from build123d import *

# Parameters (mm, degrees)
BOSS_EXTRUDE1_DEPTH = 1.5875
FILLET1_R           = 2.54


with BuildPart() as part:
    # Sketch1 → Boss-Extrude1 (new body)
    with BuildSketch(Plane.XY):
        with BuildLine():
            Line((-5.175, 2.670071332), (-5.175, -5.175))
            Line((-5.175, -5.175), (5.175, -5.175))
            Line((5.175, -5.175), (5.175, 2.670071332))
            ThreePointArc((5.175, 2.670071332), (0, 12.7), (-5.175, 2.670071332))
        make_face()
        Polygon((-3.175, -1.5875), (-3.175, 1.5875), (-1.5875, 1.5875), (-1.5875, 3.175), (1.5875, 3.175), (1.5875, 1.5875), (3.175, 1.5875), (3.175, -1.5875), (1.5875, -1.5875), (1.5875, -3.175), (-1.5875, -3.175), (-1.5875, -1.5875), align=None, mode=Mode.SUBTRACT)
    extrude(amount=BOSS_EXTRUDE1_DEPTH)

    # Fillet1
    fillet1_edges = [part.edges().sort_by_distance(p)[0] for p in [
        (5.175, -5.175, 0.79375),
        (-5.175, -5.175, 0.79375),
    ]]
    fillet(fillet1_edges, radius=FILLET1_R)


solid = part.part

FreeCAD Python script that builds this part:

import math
import FreeCAD as App
import Part
import Sketcher
from FreeCAD import Vector
Q = App.Units.Quantity


def edges_at(feature, points):
    """Names of the edges that pass closest to the given points."""
    edges = feature.Shape.Edges
    near = lambda p: min(range(len(edges)), key=lambda i: edges[i].distToShape(Part.Vertex(*p))[0])
    return sorted({f"Edge{near(p) + 1}" for p in points})

doc = App.newDocument("Part")
body = doc.addObject("PartDesign::Body", "Body")

# Sketch on XY plane
sketch1 = body.newObject("Sketcher::SketchObject", "Sketch")
sketch1.AttachmentSupport = (doc.getObject("XY_Plane"), [""])
sketch1.MapMode = "FlatFace"
sketch1.addGeometry([
    Part.LineSegment(Vector(-5.175, 2.670071, 0), Vector(-5.175, -5.175, 0)),  # 0
    Part.LineSegment(Vector(-5.175, -5.175, 0), Vector(5.175, -5.175, 0)),  # 1
    Part.LineSegment(Vector(5.175, -5.175, 0), Vector(5.175, 2.670071, 0)),  # 2
    Part.ArcOfCircle(Part.Circle(Vector(0, 6.35, 0), Vector(0, 0, 1), 6.35), math.radians(-35.416531), math.radians(215.416531)),  # 3
    Part.LineSegment(Vector(-1.5875, -1.5875, 0), Vector(-3.175, -1.5875, 0)),  # 4
    Part.LineSegment(Vector(-3.175, -1.5875, 0), Vector(-3.175, 1.5875, 0)),  # 5
    Part.LineSegment(Vector(-3.175, 1.5875, 0), Vector(-1.5875, 1.5875, 0)),  # 6
    Part.LineSegment(Vector(-1.5875, 1.5875, 0), Vector(-1.5875, 3.175, 0)),  # 7
    Part.LineSegment(Vector(-1.5875, 3.175, 0), Vector(1.5875, 3.175, 0)),  # 8
    Part.LineSegment(Vector(1.5875, 3.175, 0), Vector(1.5875, 1.5875, 0)),  # 9
    Part.LineSegment(Vector(1.5875, 1.5875, 0), Vector(3.175, 1.5875, 0)),  # 10
    Part.LineSegment(Vector(3.175, 1.5875, 0), Vector(3.175, -1.5875, 0)),  # 11
    Part.LineSegment(Vector(3.175, -1.5875, 0), Vector(1.5875, -1.5875, 0)),  # 12
    Part.LineSegment(Vector(1.5875, -1.5875, 0), Vector(1.5875, -3.175, 0)),  # 13
    Part.LineSegment(Vector(1.5875, -3.175, 0), Vector(-1.5875, -3.175, 0)),  # 14
    Part.LineSegment(Vector(-1.5875, -3.175, 0), Vector(-1.5875, -1.5875, 0)),  # 15
], False)
sketch1.addConstraint([
    Sketcher.Constraint("Coincident", 0, 2, 1, 1),
    Sketcher.Constraint("Coincident", 1, 2, 2, 1),
    Sketcher.Constraint("Coincident", 2, 2, 3, 1),
    Sketcher.Constraint("Coincident", 3, 2, 0, 1),
    Sketcher.Constraint("Coincident", 4, 2, 5, 1),
    Sketcher.Constraint("Coincident", 5, 2, 6, 1),
    Sketcher.Constraint("Coincident", 6, 2, 7, 1),
    Sketcher.Constraint("Coincident", 7, 2, 8, 1),
    Sketcher.Constraint("Coincident", 8, 2, 9, 1),
    Sketcher.Constraint("Coincident", 9, 2, 10, 1),
    Sketcher.Constraint("Coincident", 10, 2, 11, 1),
    Sketcher.Constraint("Coincident", 11, 2, 12, 1),
    Sketcher.Constraint("Coincident", 12, 2, 13, 1),
    Sketcher.Constraint("Coincident", 13, 2, 14, 1),
    Sketcher.Constraint("Coincident", 14, 2, 15, 1),
    Sketcher.Constraint("Coincident", 15, 2, 4, 1),
    Sketcher.Constraint("Vertical", 0),
    Sketcher.Constraint("Horizontal", 1),
    Sketcher.Constraint("Vertical", 2),
    Sketcher.Constraint("Horizontal", 4),
    Sketcher.Constraint("Vertical", 5),
    Sketcher.Constraint("Horizontal", 6),
    Sketcher.Constraint("Vertical", 7),
    Sketcher.Constraint("Horizontal", 8),
    Sketcher.Constraint("Vertical", 9),
    Sketcher.Constraint("Horizontal", 10),
    Sketcher.Constraint("Vertical", 11),
    Sketcher.Constraint("Horizontal", 12),
    Sketcher.Constraint("Vertical", 13),
    Sketcher.Constraint("Horizontal", 14),
    Sketcher.Constraint("Vertical", 15),
    Sketcher.Constraint("Symmetric", 4, 2, 10, 2, -1, 1),
    Sketcher.Constraint("Symmetric", 6, 2, 12, 2, -1, 1),
    Sketcher.Constraint("Symmetric", 8, 2, 14, 2, -1, 1),
    Sketcher.Constraint("Symmetric", 2, 2, 3, 2, -2),
    Sketcher.Constraint("Symmetric", 6, 2, 9, 2, -2),
    Sketcher.Constraint("Equal", 14, 5),
    Sketcher.Constraint("Equal", 12, 7),
    Sketcher.Constraint("Radius", 3, Q("0.25 in")),
    Sketcher.Constraint("DistanceX", 4, 2, 4, 1, Q("0.0625 in")),
    Sketcher.Constraint("DistanceX", 8, 1, 8, 2, Q("0.125 in")),
    Sketcher.Constraint("DistanceY", -1, 1, 3, 3, Q("0.25 in")),
    Sketcher.Constraint("DistanceX", 1, 1, 1, 2, 10.35),
    Sketcher.Constraint("DistanceY", 0, 2, 0, 1, 7.845071),
])
pad1 = body.newObject("PartDesign::Pad", "Pad")
pad1.Profile = sketch1
pad1.Length = Q("0.0625 in")
doc.recompute()

fillet = body.newObject("PartDesign::Fillet", "Fillet")
fillet.Base = (pad1, edges_at(pad1, [(5.175, -5.175, 0.794), (-5.175, -5.175, 0.794)]))
fillet.Radius = Q("0.1 in")

doc.recompute()
